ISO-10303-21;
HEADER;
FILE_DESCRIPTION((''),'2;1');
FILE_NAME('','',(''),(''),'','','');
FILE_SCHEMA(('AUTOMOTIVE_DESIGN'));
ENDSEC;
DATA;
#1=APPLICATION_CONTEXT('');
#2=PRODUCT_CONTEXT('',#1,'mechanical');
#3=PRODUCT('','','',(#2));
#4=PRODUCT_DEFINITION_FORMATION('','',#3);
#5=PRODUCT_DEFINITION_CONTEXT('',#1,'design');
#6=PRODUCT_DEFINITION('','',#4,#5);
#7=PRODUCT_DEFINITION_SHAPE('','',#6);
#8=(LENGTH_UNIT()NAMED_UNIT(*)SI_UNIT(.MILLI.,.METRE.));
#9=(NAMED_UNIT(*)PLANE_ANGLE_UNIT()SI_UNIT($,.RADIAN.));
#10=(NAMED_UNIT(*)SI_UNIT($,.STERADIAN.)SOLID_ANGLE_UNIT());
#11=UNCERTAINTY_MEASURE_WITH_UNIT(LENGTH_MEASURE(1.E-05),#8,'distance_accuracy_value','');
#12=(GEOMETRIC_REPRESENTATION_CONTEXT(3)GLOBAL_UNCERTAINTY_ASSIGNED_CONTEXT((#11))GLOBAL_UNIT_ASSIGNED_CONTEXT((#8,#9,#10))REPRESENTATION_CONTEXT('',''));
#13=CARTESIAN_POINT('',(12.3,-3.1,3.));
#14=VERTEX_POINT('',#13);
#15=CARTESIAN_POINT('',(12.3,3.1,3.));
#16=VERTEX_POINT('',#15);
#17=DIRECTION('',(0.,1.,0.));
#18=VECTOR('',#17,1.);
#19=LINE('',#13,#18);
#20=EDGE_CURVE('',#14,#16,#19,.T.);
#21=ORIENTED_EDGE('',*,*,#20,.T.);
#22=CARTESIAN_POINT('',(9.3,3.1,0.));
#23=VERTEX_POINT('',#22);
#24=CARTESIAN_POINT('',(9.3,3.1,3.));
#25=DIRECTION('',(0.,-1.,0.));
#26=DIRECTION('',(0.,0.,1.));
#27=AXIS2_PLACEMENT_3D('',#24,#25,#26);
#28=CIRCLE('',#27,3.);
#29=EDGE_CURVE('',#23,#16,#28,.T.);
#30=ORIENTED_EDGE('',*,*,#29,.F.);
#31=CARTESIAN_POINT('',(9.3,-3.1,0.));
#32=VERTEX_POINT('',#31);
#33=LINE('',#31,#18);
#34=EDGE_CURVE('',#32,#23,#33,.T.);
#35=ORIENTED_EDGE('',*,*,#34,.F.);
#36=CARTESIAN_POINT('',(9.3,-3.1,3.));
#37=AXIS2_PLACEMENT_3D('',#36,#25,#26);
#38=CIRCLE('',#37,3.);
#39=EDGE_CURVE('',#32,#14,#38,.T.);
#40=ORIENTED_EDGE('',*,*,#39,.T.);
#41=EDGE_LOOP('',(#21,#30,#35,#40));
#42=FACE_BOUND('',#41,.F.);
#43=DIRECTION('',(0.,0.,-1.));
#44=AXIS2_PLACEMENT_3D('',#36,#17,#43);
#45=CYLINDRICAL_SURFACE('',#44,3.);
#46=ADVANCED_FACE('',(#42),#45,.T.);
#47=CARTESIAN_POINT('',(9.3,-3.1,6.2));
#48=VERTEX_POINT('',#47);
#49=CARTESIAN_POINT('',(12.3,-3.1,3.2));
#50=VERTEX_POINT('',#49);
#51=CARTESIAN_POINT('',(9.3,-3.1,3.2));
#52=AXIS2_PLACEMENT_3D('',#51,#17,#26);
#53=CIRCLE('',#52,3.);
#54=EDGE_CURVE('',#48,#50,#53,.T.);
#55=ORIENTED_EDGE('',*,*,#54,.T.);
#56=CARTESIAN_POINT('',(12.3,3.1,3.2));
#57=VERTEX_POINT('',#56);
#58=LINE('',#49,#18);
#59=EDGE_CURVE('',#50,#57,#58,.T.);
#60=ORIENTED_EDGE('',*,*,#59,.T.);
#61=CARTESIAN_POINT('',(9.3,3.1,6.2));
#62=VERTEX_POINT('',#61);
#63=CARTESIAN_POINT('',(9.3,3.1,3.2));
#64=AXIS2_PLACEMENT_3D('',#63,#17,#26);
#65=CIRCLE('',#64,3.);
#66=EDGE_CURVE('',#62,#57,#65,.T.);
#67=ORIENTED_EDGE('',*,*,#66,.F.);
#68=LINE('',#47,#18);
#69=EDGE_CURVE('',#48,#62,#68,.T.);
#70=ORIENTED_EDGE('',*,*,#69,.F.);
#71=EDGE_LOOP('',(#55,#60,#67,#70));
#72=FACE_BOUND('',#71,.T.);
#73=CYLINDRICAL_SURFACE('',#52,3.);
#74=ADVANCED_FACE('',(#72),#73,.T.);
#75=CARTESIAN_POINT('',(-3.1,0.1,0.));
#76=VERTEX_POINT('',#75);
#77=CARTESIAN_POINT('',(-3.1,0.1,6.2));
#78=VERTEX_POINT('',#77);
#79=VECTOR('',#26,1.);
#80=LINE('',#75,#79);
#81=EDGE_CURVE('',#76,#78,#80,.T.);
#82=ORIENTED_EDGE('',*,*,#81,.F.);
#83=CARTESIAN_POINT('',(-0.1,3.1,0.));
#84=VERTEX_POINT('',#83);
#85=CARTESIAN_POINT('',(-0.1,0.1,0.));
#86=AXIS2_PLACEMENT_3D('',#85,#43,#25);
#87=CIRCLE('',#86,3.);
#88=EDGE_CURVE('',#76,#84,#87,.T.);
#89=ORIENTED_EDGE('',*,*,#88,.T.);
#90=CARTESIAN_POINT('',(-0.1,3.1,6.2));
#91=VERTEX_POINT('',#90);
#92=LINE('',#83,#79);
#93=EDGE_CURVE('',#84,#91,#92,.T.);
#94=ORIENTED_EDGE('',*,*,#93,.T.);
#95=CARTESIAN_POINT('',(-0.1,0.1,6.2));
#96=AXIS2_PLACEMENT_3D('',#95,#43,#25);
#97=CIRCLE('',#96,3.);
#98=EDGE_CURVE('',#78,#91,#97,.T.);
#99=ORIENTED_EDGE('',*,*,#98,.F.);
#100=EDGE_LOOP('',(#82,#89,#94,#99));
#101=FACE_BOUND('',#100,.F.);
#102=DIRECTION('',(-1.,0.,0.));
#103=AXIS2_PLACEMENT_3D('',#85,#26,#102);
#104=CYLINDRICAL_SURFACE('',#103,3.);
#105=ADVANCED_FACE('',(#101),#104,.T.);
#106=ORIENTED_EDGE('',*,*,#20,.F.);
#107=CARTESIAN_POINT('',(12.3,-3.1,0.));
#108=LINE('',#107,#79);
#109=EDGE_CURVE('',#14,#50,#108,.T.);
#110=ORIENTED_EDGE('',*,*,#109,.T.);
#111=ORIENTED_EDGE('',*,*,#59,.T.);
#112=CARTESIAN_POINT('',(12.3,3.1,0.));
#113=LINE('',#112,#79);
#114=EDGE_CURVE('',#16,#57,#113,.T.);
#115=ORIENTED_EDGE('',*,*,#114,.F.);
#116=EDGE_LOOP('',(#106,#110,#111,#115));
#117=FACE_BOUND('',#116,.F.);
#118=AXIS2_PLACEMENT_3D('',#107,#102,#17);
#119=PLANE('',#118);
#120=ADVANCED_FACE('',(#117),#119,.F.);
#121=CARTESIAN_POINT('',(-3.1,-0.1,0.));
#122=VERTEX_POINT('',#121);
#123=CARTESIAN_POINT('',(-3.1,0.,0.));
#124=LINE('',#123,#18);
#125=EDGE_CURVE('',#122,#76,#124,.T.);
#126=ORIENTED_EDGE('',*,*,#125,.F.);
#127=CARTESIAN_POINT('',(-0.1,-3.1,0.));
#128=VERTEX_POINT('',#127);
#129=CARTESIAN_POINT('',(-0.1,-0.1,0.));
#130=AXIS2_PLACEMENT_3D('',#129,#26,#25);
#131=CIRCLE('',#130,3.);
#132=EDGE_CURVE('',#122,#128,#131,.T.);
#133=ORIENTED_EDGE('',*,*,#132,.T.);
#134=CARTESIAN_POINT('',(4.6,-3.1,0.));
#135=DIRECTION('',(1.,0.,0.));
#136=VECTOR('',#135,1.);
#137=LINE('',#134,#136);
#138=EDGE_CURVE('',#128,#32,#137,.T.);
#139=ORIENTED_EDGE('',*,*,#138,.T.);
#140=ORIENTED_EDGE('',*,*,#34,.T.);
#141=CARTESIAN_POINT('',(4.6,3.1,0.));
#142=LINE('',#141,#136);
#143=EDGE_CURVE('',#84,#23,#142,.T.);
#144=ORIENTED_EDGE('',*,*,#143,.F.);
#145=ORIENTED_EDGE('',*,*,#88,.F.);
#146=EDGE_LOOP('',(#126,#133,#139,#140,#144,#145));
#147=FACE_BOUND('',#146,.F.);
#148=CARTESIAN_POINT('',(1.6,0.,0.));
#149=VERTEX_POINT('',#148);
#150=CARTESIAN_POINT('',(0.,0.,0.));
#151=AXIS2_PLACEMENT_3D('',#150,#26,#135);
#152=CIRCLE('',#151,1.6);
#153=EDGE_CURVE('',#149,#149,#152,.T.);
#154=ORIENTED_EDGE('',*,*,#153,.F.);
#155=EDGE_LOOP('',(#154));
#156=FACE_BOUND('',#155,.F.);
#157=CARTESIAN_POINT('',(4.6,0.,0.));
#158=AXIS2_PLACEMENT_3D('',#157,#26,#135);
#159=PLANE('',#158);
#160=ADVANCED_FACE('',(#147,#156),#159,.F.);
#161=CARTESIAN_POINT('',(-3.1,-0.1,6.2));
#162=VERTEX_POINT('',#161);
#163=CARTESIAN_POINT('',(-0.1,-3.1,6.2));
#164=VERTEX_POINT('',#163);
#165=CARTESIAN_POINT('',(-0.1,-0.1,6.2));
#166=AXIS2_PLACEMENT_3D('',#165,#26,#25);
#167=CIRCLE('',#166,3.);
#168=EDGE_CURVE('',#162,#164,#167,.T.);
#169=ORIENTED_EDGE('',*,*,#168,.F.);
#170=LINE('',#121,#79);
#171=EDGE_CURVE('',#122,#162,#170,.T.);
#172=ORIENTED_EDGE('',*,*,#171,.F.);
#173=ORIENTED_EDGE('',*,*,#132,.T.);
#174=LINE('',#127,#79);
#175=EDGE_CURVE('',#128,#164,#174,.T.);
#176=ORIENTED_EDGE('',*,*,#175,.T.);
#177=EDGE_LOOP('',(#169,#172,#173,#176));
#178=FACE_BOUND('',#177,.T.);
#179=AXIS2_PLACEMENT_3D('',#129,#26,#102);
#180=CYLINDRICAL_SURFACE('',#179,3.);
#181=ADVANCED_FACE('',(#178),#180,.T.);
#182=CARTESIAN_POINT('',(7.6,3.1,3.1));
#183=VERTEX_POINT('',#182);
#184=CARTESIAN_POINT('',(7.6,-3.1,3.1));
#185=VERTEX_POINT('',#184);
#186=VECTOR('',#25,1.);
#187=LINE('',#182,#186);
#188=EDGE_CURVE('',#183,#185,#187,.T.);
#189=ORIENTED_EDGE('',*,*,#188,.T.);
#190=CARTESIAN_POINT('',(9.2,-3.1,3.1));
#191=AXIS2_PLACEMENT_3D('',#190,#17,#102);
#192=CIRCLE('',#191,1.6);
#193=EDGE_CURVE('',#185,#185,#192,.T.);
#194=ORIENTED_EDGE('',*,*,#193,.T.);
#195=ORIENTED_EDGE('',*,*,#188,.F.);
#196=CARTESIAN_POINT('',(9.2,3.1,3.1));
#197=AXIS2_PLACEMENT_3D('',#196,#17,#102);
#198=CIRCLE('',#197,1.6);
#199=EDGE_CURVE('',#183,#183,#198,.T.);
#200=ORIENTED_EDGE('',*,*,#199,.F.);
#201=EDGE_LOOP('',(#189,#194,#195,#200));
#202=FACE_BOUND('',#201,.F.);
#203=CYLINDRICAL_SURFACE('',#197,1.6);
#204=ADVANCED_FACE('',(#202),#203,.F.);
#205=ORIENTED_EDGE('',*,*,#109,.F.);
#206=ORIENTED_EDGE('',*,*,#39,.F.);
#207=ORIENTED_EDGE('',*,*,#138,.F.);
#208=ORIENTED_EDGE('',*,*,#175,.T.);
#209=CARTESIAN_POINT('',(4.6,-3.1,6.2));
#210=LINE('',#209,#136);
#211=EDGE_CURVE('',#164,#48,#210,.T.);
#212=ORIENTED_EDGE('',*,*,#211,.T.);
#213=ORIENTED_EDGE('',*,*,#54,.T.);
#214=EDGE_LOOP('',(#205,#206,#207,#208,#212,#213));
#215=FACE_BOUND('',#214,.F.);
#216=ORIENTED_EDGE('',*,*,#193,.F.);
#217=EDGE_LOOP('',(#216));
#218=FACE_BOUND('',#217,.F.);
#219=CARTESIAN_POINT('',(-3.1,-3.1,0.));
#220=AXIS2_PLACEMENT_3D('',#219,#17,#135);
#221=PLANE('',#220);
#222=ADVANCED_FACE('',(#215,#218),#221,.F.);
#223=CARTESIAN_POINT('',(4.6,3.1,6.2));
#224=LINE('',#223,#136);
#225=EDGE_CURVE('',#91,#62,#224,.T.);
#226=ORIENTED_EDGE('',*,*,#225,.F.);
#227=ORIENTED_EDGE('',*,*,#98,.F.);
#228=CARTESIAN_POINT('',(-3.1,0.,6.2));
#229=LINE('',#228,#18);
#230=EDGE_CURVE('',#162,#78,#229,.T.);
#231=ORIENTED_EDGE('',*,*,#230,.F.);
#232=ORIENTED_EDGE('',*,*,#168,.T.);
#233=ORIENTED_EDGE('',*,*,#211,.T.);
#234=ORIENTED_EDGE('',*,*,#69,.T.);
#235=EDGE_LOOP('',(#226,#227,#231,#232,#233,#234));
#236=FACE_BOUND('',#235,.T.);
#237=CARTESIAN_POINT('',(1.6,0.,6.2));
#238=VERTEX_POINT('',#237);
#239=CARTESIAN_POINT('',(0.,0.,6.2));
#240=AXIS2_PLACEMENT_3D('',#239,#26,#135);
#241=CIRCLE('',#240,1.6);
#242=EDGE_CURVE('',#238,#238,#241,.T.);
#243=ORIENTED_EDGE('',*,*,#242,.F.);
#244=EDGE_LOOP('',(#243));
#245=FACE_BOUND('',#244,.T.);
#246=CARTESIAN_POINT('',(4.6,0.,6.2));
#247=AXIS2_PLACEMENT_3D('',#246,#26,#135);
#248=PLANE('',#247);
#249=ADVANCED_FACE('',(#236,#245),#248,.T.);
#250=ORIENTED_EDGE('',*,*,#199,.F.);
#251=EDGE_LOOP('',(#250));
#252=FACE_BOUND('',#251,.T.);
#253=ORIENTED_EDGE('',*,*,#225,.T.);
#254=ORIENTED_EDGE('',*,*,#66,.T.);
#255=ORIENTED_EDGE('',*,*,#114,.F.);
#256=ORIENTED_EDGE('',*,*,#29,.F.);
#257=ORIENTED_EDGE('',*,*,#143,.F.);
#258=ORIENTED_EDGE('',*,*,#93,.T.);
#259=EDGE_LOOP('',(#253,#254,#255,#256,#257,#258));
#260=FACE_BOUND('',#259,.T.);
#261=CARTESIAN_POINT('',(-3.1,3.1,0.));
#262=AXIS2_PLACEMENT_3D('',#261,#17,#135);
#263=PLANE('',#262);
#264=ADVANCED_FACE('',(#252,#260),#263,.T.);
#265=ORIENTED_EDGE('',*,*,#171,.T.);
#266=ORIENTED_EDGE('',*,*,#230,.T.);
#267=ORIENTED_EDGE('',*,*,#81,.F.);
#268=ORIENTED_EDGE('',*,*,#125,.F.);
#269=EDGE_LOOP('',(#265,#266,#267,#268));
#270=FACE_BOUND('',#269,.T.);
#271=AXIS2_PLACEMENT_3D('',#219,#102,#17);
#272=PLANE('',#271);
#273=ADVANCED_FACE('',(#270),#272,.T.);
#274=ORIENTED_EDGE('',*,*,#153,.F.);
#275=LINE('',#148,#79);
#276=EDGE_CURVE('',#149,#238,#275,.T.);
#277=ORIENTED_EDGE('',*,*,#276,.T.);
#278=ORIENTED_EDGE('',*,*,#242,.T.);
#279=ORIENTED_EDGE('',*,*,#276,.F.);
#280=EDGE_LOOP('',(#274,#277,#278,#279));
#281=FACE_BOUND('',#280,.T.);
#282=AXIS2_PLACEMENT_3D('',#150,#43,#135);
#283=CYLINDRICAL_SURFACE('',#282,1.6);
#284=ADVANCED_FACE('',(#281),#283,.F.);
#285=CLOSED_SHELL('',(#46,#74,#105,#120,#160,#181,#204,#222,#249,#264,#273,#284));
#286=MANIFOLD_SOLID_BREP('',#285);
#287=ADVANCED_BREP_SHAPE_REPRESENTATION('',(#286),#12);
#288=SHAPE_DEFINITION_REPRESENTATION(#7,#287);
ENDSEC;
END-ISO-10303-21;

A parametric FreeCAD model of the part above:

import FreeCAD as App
import Part
import Sketcher
from FreeCAD import Vector
Q = App.Units.Quantity


def edges_at(feature, points):
    """Names of the edges that pass closest to the given points."""
    edges = feature.Shape.Edges
    near = lambda p: min(range(len(edges)), key=lambda i: edges[i].distToShape(Part.Vertex(*p))[0])
    return sorted({f"Edge{near(p) + 1}" for p in points})


def add_polygon(sketch, points):
    """Adds a closed chain of lines whose ends are joined by coincident constraints."""
    first, n = sketch.GeometryCount, len(points)
    for a, b in zip(points, points[1:] + points[:1]):
        sketch.addGeometry(Part.LineSegment(App.Vector(*a, 0), App.Vector(*b, 0)), False)
    for i in range(n):
        sketch.addConstraint(Sketcher.Constraint("Coincident", first + i, 2, first + (i + 1) % n, 1))

doc = App.newDocument("Part")
body = doc.addObject("PartDesign::Body", "Body")

# Sketch on XY plane
sketch1 = body.newObject("Sketcher::SketchObject", "Sketch")
sketch1.AttachmentSupport = (doc.getObject("XY_Plane"), [""])
sketch1.MapMode = "FlatFace"
add_polygon(sketch1, [(-3.1, 3.1), (-3.1, -3.1), (12.3, -3.1), (12.3, 3.1)])  # lines 0-3
sketch1.addGeometry(Part.Circle(Vector(0, 0, 0), Vector(0, 0, 1), 1.6), False)  # 4
sketch1.addConstraint([
    Sketcher.Constraint("Vertical", 0),
    Sketcher.Constraint("Horizontal", 1),
    Sketcher.Constraint("Vertical", 2),
    Sketcher.Constraint("Horizontal", 3),
    Sketcher.Constraint("Coincident", 4, 3, -1, 1),
    Sketcher.Constraint("Diameter", 4, Q("3.2 mm")),
    Sketcher.Constraint("DistanceX", 1, 1, 1, 2, Q("15.4 mm")),
    Sketcher.Constraint("DistanceY", 0, 2, 0, 1, Q("6.2 mm")),
    Sketcher.Constraint("DistanceX", 0, 2, -1, 1, Q("3.1 mm")),
    Sketcher.Constraint("DistanceY", 0, 2, -1, 1, Q("3.1 mm")),
])
pad1 = body.newObject("PartDesign::Pad", "Pad")
pad1.Profile = sketch1
pad1.Length = 6.2

# Sketch on XZ plane
sketch2 = body.newObject("Sketcher::SketchObject", "Sketch001")
sketch2.AttachmentSupport = (doc.getObject("XZ_Plane"), [""])
sketch2.MapMode = "FlatFace"
sketch2.AttachmentOffset = App.Placement(Vector(0, 0, -3.1), App.Rotation())
sketch2.addGeometry(Part.Circle(Vector(9.2, 3.1, 0), Vector(0, 0, 1), 1.6), False)
sketch2.addConstraint([
    Sketcher.Constraint("Diameter", 0, Q("3.2 mm")),
    Sketcher.Constraint("DistanceX", -1, 1, 0, 3, Q("9.2 mm")),
    Sketcher.Constraint("DistanceY", -1, 1, 0, 3, Q("3.1 mm")),
])
pocket1 = body.newObject("PartDesign::Pocket", "Pocket")
pocket1.Profile = sketch2
pocket1.Type = "ThroughAll"
pocket1.Reversed = True
doc.recompute()

fillet = body.newObject("PartDesign::Fillet", "Fillet")
fillet.Base = (pocket1, edges_at(pocket1, [(-3.1, -3.1, 3.1), (-3.1, 3.1, 3.1)]))
fillet.Radius = 3
doc.recompute()

fillet2 = body.newObject("PartDesign::Fillet", "Fillet001")
fillet2.Base = (fillet, edges_at(fillet, [(12.3, 0, 6.2), (12.3, 0, 0)]))
fillet2.Radius = 3

doc.recompute()
